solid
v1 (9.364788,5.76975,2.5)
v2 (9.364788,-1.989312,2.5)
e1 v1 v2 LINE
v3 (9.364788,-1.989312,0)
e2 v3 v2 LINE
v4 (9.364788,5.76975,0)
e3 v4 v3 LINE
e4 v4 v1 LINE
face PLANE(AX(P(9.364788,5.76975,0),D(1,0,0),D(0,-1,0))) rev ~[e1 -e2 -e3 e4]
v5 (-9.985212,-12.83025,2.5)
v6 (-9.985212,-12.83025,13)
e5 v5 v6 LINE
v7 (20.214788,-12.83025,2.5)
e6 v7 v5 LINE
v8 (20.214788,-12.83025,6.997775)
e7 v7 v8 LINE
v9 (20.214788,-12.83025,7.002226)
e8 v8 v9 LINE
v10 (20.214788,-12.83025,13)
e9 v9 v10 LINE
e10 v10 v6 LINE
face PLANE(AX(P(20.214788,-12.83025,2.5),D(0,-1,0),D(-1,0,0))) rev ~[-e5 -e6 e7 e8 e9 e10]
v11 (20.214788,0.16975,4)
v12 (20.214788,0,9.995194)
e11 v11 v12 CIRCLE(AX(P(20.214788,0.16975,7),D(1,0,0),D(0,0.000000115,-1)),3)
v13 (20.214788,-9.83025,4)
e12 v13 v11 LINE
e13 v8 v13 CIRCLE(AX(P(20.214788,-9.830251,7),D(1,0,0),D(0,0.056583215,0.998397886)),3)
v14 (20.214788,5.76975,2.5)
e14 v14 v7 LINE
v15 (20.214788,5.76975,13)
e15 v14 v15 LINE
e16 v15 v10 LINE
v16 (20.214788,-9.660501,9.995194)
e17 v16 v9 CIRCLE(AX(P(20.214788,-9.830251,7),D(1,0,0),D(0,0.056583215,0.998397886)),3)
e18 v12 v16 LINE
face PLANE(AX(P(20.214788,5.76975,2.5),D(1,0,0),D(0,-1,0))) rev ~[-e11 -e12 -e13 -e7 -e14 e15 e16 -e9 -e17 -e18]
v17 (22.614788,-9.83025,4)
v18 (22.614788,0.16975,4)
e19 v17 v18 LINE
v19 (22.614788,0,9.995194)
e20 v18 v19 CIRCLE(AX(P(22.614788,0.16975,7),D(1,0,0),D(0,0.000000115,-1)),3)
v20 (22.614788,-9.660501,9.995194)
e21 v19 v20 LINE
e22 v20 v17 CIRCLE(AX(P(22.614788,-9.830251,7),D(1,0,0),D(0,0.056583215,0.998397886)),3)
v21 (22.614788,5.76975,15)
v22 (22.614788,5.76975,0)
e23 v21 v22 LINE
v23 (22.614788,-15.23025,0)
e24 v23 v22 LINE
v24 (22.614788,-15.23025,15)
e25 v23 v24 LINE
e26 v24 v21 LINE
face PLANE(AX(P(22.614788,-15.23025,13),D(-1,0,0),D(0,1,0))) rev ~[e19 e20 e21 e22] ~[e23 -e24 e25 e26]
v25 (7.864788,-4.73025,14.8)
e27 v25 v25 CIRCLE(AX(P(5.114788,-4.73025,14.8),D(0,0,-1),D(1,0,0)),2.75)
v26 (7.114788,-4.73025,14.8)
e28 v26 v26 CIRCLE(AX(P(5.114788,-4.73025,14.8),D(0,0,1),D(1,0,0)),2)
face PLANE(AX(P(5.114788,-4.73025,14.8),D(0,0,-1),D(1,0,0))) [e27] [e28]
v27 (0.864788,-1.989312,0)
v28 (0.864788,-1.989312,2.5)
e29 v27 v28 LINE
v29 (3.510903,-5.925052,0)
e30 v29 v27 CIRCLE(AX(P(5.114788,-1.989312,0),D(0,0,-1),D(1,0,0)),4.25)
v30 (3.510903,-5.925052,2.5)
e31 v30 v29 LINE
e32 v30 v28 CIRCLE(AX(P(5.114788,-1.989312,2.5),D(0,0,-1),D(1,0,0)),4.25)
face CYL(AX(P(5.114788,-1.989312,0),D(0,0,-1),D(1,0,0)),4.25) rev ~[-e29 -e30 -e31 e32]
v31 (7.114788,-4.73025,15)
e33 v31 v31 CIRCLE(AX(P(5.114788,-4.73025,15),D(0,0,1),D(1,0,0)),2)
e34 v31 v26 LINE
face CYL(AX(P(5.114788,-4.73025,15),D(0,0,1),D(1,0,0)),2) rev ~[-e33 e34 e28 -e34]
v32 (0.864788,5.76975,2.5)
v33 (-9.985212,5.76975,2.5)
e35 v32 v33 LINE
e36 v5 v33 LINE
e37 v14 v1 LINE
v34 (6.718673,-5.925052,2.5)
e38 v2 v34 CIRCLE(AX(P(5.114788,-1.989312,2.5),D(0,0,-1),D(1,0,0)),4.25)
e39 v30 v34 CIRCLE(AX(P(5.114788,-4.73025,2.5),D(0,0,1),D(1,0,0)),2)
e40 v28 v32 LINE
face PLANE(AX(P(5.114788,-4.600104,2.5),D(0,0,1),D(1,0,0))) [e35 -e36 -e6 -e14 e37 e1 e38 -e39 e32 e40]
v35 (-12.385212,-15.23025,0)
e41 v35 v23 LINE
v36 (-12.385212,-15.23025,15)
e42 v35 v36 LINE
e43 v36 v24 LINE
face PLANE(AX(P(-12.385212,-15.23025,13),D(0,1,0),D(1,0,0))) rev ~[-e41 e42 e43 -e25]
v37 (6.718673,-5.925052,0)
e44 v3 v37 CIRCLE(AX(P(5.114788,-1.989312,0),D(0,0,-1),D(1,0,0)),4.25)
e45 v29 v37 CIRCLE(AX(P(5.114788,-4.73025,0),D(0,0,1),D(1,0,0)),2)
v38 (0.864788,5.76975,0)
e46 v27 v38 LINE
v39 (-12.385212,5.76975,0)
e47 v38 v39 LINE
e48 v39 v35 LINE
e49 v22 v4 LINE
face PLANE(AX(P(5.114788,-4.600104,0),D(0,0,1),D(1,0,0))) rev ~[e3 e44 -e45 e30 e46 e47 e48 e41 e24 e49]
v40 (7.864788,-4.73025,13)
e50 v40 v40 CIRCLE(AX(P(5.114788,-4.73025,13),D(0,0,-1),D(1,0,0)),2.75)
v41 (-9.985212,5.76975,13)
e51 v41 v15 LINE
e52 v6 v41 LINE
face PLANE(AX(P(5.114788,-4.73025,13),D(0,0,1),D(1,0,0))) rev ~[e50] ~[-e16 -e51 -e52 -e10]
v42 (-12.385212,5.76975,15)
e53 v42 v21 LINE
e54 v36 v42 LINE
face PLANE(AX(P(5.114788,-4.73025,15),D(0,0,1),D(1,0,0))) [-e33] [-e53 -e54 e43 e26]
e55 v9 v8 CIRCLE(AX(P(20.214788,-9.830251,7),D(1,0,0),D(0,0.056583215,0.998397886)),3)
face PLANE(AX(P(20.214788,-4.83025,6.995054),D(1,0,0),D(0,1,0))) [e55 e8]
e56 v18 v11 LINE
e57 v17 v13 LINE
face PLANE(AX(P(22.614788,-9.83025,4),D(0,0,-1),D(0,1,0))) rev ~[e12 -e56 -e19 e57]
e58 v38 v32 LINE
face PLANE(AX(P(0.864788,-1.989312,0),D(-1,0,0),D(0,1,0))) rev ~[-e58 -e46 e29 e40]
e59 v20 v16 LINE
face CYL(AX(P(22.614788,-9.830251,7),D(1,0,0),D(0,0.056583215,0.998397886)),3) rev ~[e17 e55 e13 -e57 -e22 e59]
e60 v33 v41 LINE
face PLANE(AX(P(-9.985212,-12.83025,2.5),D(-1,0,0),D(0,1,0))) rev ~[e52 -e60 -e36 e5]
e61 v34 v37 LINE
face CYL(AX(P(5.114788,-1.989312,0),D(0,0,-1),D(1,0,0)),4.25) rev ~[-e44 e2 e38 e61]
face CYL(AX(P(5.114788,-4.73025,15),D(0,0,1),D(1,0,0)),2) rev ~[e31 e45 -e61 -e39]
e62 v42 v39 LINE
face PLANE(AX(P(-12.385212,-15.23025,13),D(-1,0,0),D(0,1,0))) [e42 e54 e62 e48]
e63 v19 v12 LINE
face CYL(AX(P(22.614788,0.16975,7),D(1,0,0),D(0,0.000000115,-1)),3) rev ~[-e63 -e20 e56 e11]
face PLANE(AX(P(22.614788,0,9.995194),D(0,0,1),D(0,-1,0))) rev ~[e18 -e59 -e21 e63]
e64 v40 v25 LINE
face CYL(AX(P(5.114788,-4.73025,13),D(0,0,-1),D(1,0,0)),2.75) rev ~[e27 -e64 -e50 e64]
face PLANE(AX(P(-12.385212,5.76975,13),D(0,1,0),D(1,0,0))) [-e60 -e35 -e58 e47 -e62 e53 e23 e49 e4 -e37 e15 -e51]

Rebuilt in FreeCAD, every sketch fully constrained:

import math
import FreeCAD as App
import Part
import Sketcher

V = App.Vector

doc = App.newDocument("Part")
body = doc.addObject("PartDesign::Body", "Body")

sketch1 = body.newObject("Sketcher::SketchObject", "Sketch")
sketch1.AttachmentSupport = (doc.getObject("XY_Plane"), [""])
sketch1.MapMode = "FlatFace"
sketch1.addGeometry(Part.LineSegment(V(0.9, 5.8, 0), V(-12.4, 5.8, 0)), False)
sketch1.addGeometry(Part.LineSegment(V(-12.4, 5.8, 0), V(-12.4, -15.2, 0)), False)
sketch1.addGeometry(Part.LineSegment(V(-12.4, -15.2, 0), V(22.6, -15.2, 0)), False)
sketch1.addGeometry(Part.LineSegment(V(22.6, -15.2, 0), V(22.6, 5.8, 0)), False)
sketch1.addGeometry(Part.LineSegment(V(22.6, 5.8, 0), V(9.4, 5.8, 0)), False)
sketch1.addGeometry(Part.LineSegment(V(9.4, 5.8, 0), V(9.4, -2, 0)), False)
sketch1.addGeometry(Part.ArcOfCircle(Part.Circle(V(5.1, -2, 0), V(0, 0, 1), 4.2), math.radians(180), math.radians(360)), False)
sketch1.addGeometry(Part.LineSegment(V(0.9, -2, 0), V(0.9, 5.8, 0)), False)
sketch1.addConstraint(Sketcher.Constraint("Coincident", 0, 2, 1, 1))
sketch1.addConstraint(Sketcher.Constraint("Coincident", 1, 2, 2, 1))
sketch1.addConstraint(Sketcher.Constraint("Coincident", 2, 2, 3, 1))
sketch1.addConstraint(Sketcher.Constraint("Coincident", 3, 2, 4, 1))
sketch1.addConstraint(Sketcher.Constraint("Coincident", 4, 2, 5, 1))
sketch1.addConstraint(Sketcher.Constraint("Tangent", 5, 2, 6, 2))
sketch1.addConstraint(Sketcher.Constraint("Tangent", 6, 1, 7, 1))
sketch1.addConstraint(Sketcher.Constraint("Coincident", 7, 2, 0, 1))
sketch1.addConstraint(Sketcher.Constraint("Horizontal", 0))
sketch1.addConstraint(Sketcher.Constraint("Vertical", 1))
sketch1.addConstraint(Sketcher.Constraint("Horizontal", 2))
sketch1.addConstraint(Sketcher.Constraint("Vertical", 3))
sketch1.addConstraint(Sketcher.Constraint("Horizontal", 4))
sketch1.addConstraint(Sketcher.Constraint("Vertical", 5))
sketch1.addConstraint(Sketcher.Constraint("Vertical", 7))
sketch1.addConstraint(Sketcher.Constraint("Horizontal", 0, 2, 3, 2))
sketch1.addConstraint(Sketcher.Constraint("Equal", 0, 4))
sketch1.addConstraint(Sketcher.Constraint("DistanceX", 2, 1, 2, 2, 35.0))
sketch1.addConstraint(Sketcher.Constraint("DistanceY", 1, 2, 1, 1, 21.0))
sketch1.addConstraint(Sketcher.Constraint("Radius", 6, 4.25))
sketch1.addConstraint(Sketcher.Constraint("DistanceY", 5, 2, 5, 1, 7.759062))
sketch1.addConstraint(Sketcher.Constraint("DistanceX", 0, 2, -1, 1, 12.385212))
sketch1.addConstraint(Sketcher.Constraint("DistanceY", -1, 1, 0, 2, 5.76975))
pad1 = body.newObject("PartDesign::Pad", "Pad")
pad1.Profile = sketch1
pad1.Length = 2.5

sketch2 = body.newObject("Sketcher::SketchObject", "Sketch001")
sketch2.AttachmentSupport = (doc.getObject("XY_Plane"), [""])
sketch2.MapMode = "FlatFace"
sketch2.AttachmentOffset = App.Placement(V(0, 0, 2.5), App.Rotation())
sketch2.addGeometry(Part.LineSegment(V(-10, 5.8, 0), V(-12.4, 5.8, 0)), False)
sketch2.addGeometry(Part.LineSegment(V(-12.4, 5.8, 0), V(-12.4, -15.2, 0)), False)
sketch2.addGeometry(Part.LineSegment(V(-12.4, -15.2, 0), V(22.6, -15.2, 0)), False)
sketch2.addGeometry(Part.LineSegment(V(22.6, -15.2, 0), V(22.6, 5.8, 0)), False)
sketch2.addGeometry(Part.LineSegment(V(22.6, 5.8, 0), V(20.2, 5.8, 0)), False)
sketch2.addGeometry(Part.LineSegment(V(20.2, 5.8, 0), V(20.2, -12.8, 0)), False)
sketch2.addGeometry(Part.LineSegment(V(20.2, -12.8, 0), V(-10, -12.8, 0)), False)
sketch2.addGeometry(Part.LineSegment(V(-10, -12.8, 0), V(-10, 5.8, 0)), False)
sketch2.addConstraint(Sketcher.Constraint("Coincident", 0, 2, 1, 1))
sketch2.addConstraint(Sketcher.Constraint("Coincident", 1, 2, 2, 1))
sketch2.addConstraint(Sketcher.Constraint("Coincident", 2, 2, 3, 1))
sketch2.addConstraint(Sketcher.Constraint("Coincident", 3, 2, 4, 1))
sketch2.addConstraint(Sketcher.Constraint("Coincident", 4, 2, 5, 1))
sketch2.addConstraint(Sketcher.Constraint("Coincident", 5, 2, 6, 1))
sketch2.addConstraint(Sketcher.Constraint("Coincident", 6, 2, 7, 1))
sketch2.addConstraint(Sketcher.Constraint("Coincident", 7, 2, 0, 1))
sketch2.addConstraint(Sketcher.Constraint("Horizontal", 0))
sketch2.addConstraint(Sketcher.Constraint("Vertical", 1))
sketch2.addConstraint(Sketcher.Constraint("Horizontal", 2))
sketch2.addConstraint(Sketcher.Constraint("Vertical", 3))
sketch2.addConstraint(Sketcher.Constraint("Horizontal", 4))
sketch2.addConstraint(Sketcher.Constraint("Vertical", 5))
sketch2.addConstraint(Sketcher.Constraint("Horizontal", 6))
sketch2.addConstraint(Sketcher.Constraint("Vertical", 7))
sketch2.addConstraint(Sketcher.Constraint("Horizontal", 0, 2, 3, 2))
sketch2.addConstraint(Sketcher.Constraint("Equal", 0, 4))
sketch2.addConstraint(Sketcher.Constraint("DistanceX", 2, 1, 2, 2, 35.0))
sketch2.addConstraint(Sketcher.Constraint("DistanceY", 1, 2, 1, 1, 21.0))
sketch2.addConstraint(Sketcher.Constraint("DistanceX", 0, 2, 0, 1, 2.4))
sketch2.addConstraint(Sketcher.Constraint("DistanceY", 5, 2, 5, 1, 18.6))
sketch2.addConstraint(Sketcher.Constraint("DistanceX", 0, 2, -1, 1, 12.385212))
sketch2.addConstraint(Sketcher.Constraint("DistanceY", -1, 1, 0, 2, 5.76975))
pad2 = body.newObject("PartDesign::Pad", "Pad001")
pad2.Profile = sketch2
pad2.Length = 10.5

sketch3 = body.newObject("Sketcher::SketchObject", "Sketch002")
sketch3.AttachmentSupport = (doc.getObject("XY_Plane"), [""])
sketch3.MapMode = "FlatFace"
sketch3.AttachmentOffset = App.Placement(V(0, 0, 13), App.Rotation())
sketch3.addGeometry(Part.LineSegment(V(-12, 6, 0), V(-12, -15, 0)), False)
sketch3.addGeometry(Part.LineSegment(V(-12, -15, 0), V(23, -15, 0)), False)
sketch3.addGeometry(Part.LineSegment(V(23, -15, 0), V(23, 6, 0)), False)
sketch3.addGeometry(Part.LineSegment(V(23, 6, 0), V(-12, 6, 0)), False)
sketch3.addConstraint(Sketcher.Constraint("Coincident", 0, 2, 1, 1))
sketch3.addConstraint(Sketcher.Constraint("Coincident", 1, 2, 2, 1))
sketch3.addConstraint(Sketcher.Constraint("Coincident", 2, 2, 3, 1))
sketch3.addConstraint(Sketcher.Constraint("Coincident", 3, 2, 0, 1))
sketch3.addConstraint(Sketcher.Constraint("Vertical", 0))
sketch3.addConstraint(Sketcher.Constraint("Horizontal", 1))
sketch3.addConstraint(Sketcher.Constraint("Vertical", 2))
sketch3.addConstraint(Sketcher.Constraint("Horizontal", 3))
sketch3.addConstraint(Sketcher.Constraint("DistanceX", 1, 1, 1, 2, 35.0))
sketch3.addConstraint(Sketcher.Constraint("DistanceY", 0, 2, 0, 1, 21.0))
sketch3.addConstraint(Sketcher.Constraint("DistanceX", 0, 2, -1, 1, 12.385212))
sketch3.addConstraint(Sketcher.Constraint("DistanceY", 0, 2, -1, 1, 15.23025))
pad3 = body.newObject("PartDesign::Pad", "Pad002")
pad3.Profile = sketch3
pad3.Length = 2

sketch4 = body.newObject("Sketcher::SketchObject", "Sketch003")
sketch4.AttachmentSupport = (doc.getObject("YZ_Plane"), [""])
sketch4.MapMode = "FlatFace"
sketch4.AttachmentOffset = App.Placement(V(0, 0, 22.614788), App.Rotation())
sketch4.addGeometry(Part.LineSegment(V(-9.8, 4, 0), V(0.2, 4, 0)), False)
sketch4.addGeometry(Part.ArcOfCircle(Part.Circle(V(0.2, 7, 0), V(0, 0, 1), 3), math.radians(-90), math.radians(93)), False)
sketch4.addGeometry(Part.LineSegment(V(0, 10, 0), V(-9.7, 10, 0)), False)
sketch4.addGeometry(Part.ArcOfCircle(Part.Circle(V(-9.8, 7, 0), V(0, 0, 1), 3), math.radians(87), math.radians(270)), False)
sketch4.addConstraint(Sketcher.Constraint("Tangent", 0, 2, 1, 1))
sketch4.addConstraint(Sketcher.Constraint("Coincident", 1, 2, 2, 1))
sketch4.addConstraint(Sketcher.Constraint("Coincident", 2, 2, 3, 1))
sketch4.addConstraint(Sketcher.Constraint("Tangent", 3, 2, 0, 1))
sketch4.addConstraint(Sketcher.Constraint("Horizontal", 0))
sketch4.addConstraint(Sketcher.Constraint("Horizontal", 2))
sketch4.addConstraint(Sketcher.Constraint("Equal", 1, 3))
sketch4.addConstraint(Sketcher.Constraint("PointOnObject", 1, 2, -2))
sketch4.addConstraint(Sketcher.Constraint("Radius", 1, 3.0))
sketch4.addConstraint(Sketcher.Constraint("DistanceX", 0, 1, 0, 2, 10.0))
sketch4.addConstraint(Sketcher.Constraint("DistanceY", -1, 1, 1, 3, 7.0))
sketch4.addConstraint(Sketcher.Constraint("DistanceX", 2, 2, 2, 1, 9.660501))
pocket1 = body.newObject("PartDesign::Pocket", "Pocket")
pocket1.Profile = sketch4
pocket1.Length = 2.4

sketch5 = body.newObject("Sketcher::SketchObject", "Sketch004")
sketch5.AttachmentSupport = (doc.getObject("XY_Plane"), [""])
sketch5.MapMode = "FlatFace"
sketch5.AttachmentOffset = App.Placement(V(0, 0, 15), App.Rotation())
sketch5.addGeometry(Part.Circle(V(5.1, -4.7, 0), V(0, 0, 1), 2), False)
sketch5.addConstraint(Sketcher.Constraint("Diameter", 0, 4.0))
sketch5.addConstraint(Sketcher.Constraint("DistanceY", 0, 3, -1, 1, 4.73025))
sketch5.addConstraint(Sketcher.Constraint("DistanceX", -1, 1, 0, 3, 5.114788))
pocket2 = body.newObject("PartDesign::Pocket", "Pocket001")
pocket2.Profile = sketch5
pocket2.Length = 25

sketch6 = body.newObject("Sketcher::SketchObject", "Sketch005")
sketch6.AttachmentSupport = (doc.getObject("XY_Plane"), [""])
sketch6.MapMode = "FlatFace"
sketch6.AttachmentOffset = App.Placement(V(0, 0, 13), App.Rotation())
sketch6.addGeometry(Part.Circle(V(5.1, -4.7, 0), V(0, 0, 1), 2.8), False)
sketch6.addConstraint(Sketcher.Constraint("Diameter", 0, 5.5))
sketch6.addConstraint(Sketcher.Constraint("DistanceY", 0, 3, -1, 1, 4.73025))
sketch6.addConstraint(Sketcher.Constraint("DistanceX", -1, 1, 0, 3, 5.114788))
pocket3 = body.newObject("PartDesign::Pocket", "Pocket002")
pocket3.Profile = sketch6
pocket3.Length = 1.8
pocket3.Reversed = True

doc.recompute()
